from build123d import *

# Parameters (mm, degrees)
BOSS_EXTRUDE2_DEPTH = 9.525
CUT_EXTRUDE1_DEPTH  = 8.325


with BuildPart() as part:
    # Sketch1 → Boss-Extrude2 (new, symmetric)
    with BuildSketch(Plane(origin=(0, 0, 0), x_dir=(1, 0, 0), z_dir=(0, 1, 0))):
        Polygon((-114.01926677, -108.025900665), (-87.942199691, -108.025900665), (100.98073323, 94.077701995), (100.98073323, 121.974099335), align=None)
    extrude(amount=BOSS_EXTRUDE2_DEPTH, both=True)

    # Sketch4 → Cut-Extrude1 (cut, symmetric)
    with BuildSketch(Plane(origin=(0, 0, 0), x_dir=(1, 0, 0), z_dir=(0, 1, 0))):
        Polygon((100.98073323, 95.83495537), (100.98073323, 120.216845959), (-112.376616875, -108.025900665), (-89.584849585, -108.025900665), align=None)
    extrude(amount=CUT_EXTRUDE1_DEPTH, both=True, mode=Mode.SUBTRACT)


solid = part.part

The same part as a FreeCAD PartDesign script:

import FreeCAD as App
import Part
import Sketcher
from FreeCAD import Vector
Q = App.Units.Quantity

doc = App.newDocument("Part")
params = doc.addObject("Spreadsheet::Sheet", "Params")
for row, (alias, value) in enumerate([
    ("pad1_length", "0.75 in"),
    ("pocket1_length", "16.65 mm"),
], start=1):
    params.set(f"A{row}", alias)
    params.set(f"B{row}", "=" + value)
    params.setAlias(f"B{row}", alias)

body = doc.addObject("PartDesign::Body", "Body")

# Sketch on XZ plane
sketch1 = body.newObject("Sketcher::SketchObject", "Sketch")
sketch1.AttachmentSupport = (doc.getObject("XZ_Plane"), [""])
sketch1.MapMode = "FlatFace"
sketch1.addGeometry([
    Part.LineSegment(Vector(-114, 108, 0), Vector(-88, 108, 0)),
    Part.LineSegment(Vector(-88, 108, 0), Vector(101, -94, 0)),
    Part.LineSegment(Vector(101, -94, 0), Vector(101, -122, 0)),
    Part.LineSegment(Vector(101, -122, 0), Vector(-114, 108, 0)),
], False)
sketch1.addConstraint([
    Sketcher.Constraint("Coincident", 0, 2, 1, 1),
    Sketcher.Constraint("Coincident", 1, 2, 2, 1),
    Sketcher.Constraint("Coincident", 2, 2, 3, 1),
    Sketcher.Constraint("Coincident", 3, 2, 0, 1),
    Sketcher.Constraint("Horizontal", 0),
    Sketcher.Constraint("Vertical", 2),
    Sketcher.Constraint("Parallel", 1, 3),
    Sketcher.Constraint("DistanceX", 0, 2, -1, 1, Q("87.9422 mm")),
    Sketcher.Constraint("DistanceY", -1, 1, 0, 2, Q("108.025901 mm")),
    Sketcher.Constraint("DistanceY", 1, 2, -1, 1, Q("94.077702 mm")),
    Sketcher.Constraint("DistanceY", 2, 2, -1, 1, Q("121.974099 mm")),
    Sketcher.Constraint("DistanceX", 3, 2, 1, 2, Q("215 mm")),
])
pad1 = body.newObject("PartDesign::Pad", "Pad")
pad1.Profile = sketch1
pad1.setExpression("Length", "Params.pad1_length")
pad1.Midplane = True

# Sketch on XZ plane
sketch2 = body.newObject("Sketcher::SketchObject", "Sketch001")
sketch2.AttachmentSupport = (doc.getObject("XZ_Plane"), [""])
sketch2.MapMode = "FlatFace"
sketch2.addGeometry([
    Part.LineSegment(Vector(101, -96, 0), Vector(101, -120, 0)),
    Part.LineSegment(Vector(101, -120, 0), Vector(-112, 108, 0)),
    Part.LineSegment(Vector(-112, 108, 0), Vector(-90, 108, 0)),
    Part.LineSegment(Vector(-90, 108, 0), Vector(101, -96, 0)),
], False)
sketch2.addConstraint([
    Sketcher.Constraint("Coincident", 0, 2, 1, 1),
    Sketcher.Constraint("Coincident", 1, 2, 2, 1),
    Sketcher.Constraint("Coincident", 2, 2, 3, 1),
    Sketcher.Constraint("Coincident", 3, 2, 0, 1),
    Sketcher.Constraint("Vertical", 0),
    Sketcher.Constraint("Horizontal", 2),
    Sketcher.Constraint("Parallel", 1, 3),
    Sketcher.Constraint("DistanceY", 0, 2, 0, 1, Q("24.381891 mm")),
    Sketcher.Constraint("DistanceY", -1, 1, 1, 2, Q("108.025901 mm")),
    Sketcher.Constraint("Distance", 1, Q("312.43577 mm")),
    Sketcher.Constraint("Distance", 3, Q("279.060011 mm")),
    Sketcher.Constraint("DistanceX", 2, 2, -1, 1, Q("89.58485 mm")),
])
pocket1 = body.newObject("PartDesign::Pocket", "Pocket")
pocket1.Profile = sketch2
pocket1.setExpression("Length", "Params.pocket1_length")
pocket1.Midplane = True

doc.recompute()
